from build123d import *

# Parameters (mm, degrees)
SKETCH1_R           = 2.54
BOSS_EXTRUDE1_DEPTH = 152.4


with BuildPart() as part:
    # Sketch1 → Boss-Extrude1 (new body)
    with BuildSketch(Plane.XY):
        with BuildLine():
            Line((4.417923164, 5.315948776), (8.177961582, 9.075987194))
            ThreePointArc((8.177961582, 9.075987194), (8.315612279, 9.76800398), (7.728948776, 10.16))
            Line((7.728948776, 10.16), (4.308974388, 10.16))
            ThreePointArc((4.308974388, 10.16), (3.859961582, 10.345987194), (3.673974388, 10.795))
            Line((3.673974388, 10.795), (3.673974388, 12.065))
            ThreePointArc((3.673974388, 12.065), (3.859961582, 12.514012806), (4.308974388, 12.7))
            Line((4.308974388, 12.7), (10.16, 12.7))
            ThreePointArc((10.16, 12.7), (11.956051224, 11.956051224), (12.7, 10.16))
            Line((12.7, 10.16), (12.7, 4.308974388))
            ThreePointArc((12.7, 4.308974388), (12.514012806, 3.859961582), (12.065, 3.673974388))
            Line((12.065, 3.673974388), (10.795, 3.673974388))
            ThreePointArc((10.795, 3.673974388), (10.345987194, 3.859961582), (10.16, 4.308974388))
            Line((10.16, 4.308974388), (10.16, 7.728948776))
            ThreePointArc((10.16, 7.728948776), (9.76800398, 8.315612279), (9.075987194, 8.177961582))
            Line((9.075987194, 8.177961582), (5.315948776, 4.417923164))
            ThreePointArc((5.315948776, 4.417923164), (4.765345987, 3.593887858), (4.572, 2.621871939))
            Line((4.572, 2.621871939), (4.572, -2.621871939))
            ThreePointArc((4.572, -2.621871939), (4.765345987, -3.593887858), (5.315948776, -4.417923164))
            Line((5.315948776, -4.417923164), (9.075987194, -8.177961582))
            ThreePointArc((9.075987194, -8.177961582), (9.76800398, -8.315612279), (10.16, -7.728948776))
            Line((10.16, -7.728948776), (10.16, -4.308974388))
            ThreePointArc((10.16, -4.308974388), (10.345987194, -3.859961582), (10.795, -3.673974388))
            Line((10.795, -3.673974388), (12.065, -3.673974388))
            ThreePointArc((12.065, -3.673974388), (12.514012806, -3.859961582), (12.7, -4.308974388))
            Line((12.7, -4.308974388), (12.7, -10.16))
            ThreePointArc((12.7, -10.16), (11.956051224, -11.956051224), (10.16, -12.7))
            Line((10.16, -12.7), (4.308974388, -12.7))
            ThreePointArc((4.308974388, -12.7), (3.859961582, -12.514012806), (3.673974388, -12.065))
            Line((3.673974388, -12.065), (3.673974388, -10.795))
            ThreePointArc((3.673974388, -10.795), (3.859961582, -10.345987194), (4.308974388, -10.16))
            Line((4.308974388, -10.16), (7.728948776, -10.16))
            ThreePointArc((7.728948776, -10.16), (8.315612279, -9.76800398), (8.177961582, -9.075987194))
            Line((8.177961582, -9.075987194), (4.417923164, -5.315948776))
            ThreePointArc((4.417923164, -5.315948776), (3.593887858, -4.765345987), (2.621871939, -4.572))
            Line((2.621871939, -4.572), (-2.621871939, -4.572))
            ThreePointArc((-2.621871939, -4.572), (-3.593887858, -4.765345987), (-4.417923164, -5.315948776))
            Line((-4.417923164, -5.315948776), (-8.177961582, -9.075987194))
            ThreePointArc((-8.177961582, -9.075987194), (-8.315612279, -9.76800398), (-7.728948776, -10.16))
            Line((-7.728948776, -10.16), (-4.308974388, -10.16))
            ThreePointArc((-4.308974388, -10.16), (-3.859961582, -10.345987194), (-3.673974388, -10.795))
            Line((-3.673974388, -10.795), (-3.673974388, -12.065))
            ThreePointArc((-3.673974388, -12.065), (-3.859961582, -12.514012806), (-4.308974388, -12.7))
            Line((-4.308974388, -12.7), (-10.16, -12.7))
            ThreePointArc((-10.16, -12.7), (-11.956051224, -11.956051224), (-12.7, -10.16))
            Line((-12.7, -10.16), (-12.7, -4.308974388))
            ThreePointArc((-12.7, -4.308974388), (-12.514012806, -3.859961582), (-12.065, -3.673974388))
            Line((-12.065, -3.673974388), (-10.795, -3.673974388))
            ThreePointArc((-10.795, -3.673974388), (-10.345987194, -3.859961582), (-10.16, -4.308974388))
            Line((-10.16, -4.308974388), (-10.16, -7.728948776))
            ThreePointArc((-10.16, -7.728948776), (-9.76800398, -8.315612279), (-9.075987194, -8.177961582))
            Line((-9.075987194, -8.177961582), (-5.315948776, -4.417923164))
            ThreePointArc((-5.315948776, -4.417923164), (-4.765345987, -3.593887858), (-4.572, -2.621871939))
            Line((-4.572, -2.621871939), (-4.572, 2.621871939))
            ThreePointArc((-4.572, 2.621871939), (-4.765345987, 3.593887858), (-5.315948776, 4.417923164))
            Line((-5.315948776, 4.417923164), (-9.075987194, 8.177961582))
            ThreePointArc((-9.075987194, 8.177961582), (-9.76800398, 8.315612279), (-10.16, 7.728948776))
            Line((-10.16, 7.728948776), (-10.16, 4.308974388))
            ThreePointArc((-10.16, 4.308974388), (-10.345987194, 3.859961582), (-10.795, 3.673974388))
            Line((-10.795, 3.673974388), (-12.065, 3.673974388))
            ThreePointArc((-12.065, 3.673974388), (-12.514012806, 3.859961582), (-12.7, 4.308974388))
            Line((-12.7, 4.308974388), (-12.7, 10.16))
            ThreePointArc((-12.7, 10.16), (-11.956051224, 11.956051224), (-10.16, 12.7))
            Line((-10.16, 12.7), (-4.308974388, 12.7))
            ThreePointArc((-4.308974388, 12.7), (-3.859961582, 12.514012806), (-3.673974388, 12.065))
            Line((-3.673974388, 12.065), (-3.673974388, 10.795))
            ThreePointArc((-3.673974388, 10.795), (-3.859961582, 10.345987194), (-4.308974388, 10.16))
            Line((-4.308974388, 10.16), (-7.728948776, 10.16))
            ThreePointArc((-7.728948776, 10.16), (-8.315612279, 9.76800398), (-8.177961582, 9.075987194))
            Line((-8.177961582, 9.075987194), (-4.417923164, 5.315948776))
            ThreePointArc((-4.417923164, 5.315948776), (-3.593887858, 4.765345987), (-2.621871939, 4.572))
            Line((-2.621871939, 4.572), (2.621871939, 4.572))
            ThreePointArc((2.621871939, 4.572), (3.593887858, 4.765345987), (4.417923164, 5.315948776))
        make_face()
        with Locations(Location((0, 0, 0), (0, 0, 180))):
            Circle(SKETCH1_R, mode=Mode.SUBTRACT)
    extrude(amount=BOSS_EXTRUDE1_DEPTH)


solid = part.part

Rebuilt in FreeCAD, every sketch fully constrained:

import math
import FreeCAD as App
import Part
import Sketcher

V = App.Vector
Q = App.Units.Quantity

doc = App.newDocument("Part")
body = doc.addObject("PartDesign::Body", "Body")

# Sketch on XY plane
sketch1 = body.newObject("Sketcher::SketchObject", "Sketch")
sketch1.AttachmentSupport = (doc.getObject("XY_Plane"), [""])
sketch1.MapMode = "FlatFace"
sketch1.addGeometry([
    Part.LineSegment(V(8.177962, 9.075987, 0), V(4.417923, 5.315949, 0)),  # 0
    Part.ArcOfCircle(Part.Circle(V(2.621872, 7.112, 0), V(0, 0, 1), 2.54), math.radians(-90), math.radians(-45)),  # 1
    Part.LineSegment(V(2.621872, 4.572, 0), V(-2.621872, 4.572, 0)),  # 2
    Part.ArcOfCircle(Part.Circle(V(-2.621872, 7.112, 0), V(0, 0, 1), 2.54), math.radians(-135), math.radians(-90)),  # 3
    Part.LineSegment(V(-4.417923, 5.315949, 0), V(-8.177962, 9.075987, 0)),  # 4
    Part.ArcOfCircle(Part.Circle(V(-7.728949, 9.525, 0), V(0, 0, 1), 0.635), math.radians(90), math.radians(225)),  # 5
    Part.LineSegment(V(-7.728949, 10.16, 0), V(-4.308974, 10.16, 0)),  # 6
    Part.ArcOfCircle(Part.Circle(V(-4.308974, 10.795, 0), V(0, 0, 1), 0.635), math.radians(-90), math.radians(0)),  # 7
    Part.LineSegment(V(-3.673974, 10.795, 0), V(-3.673974, 12.065, 0)),  # 8
    Part.ArcOfCircle(Part.Circle(V(-4.308974, 12.065, 0), V(0, 0, 1), 0.635), math.radians(0), math.radians(90)),  # 9
    Part.LineSegment(V(-4.308974, 12.7, 0), V(-10.16, 12.7, 0)),  # 10
    Part.ArcOfCircle(Part.Circle(V(-10.16, 10.16, 0), V(0, 0, 1), 2.54), math.radians(90), math.radians(180)),  # 11
    Part.LineSegment(V(-12.7, 10.16, 0), V(-12.7, 4.308974, 0)),  # 12
    Part.ArcOfCircle(Part.Circle(V(-12.065, 4.308974, 0), V(0, 0, 1), 0.635), math.radians(180), math.radians(270)),  # 13
    Part.LineSegment(V(-12.065, 3.673974, 0), V(-10.795, 3.673974, 0)),  # 14
    Part.ArcOfCircle(Part.Circle(V(-10.795, 4.308974, 0), V(0, 0, 1), 0.635), math.radians(-90), math.radians(0)),  # 15
    Part.LineSegment(V(-10.16, 4.308974, 0), V(-10.16, 7.728949, 0)),  # 16
    Part.ArcOfCircle(Part.Circle(V(-9.525, 7.728949, 0), V(0, 0, 1), 0.635), math.radians(45), math.radians(180)),  # 17
    Part.LineSegment(V(-9.075987, 8.177962, 0), V(-5.315949, 4.417923, 0)),  # 18
    Part.ArcOfCircle(Part.Circle(V(-7.112, 2.621872, 0), V(0, 0, 1), 2.54), math.radians(0), math.radians(45)),  # 19
    Part.LineSegment(V(-4.572, 2.621872, 0), V(-4.572, -2.621872, 0)),  # 20
    Part.ArcOfCircle(Part.Circle(V(-7.112, -2.621872, 0), V(0, 0, 1), 2.54), math.radians(-45), math.radians(0)),  # 21
    Part.LineSegment(V(-5.315949, -4.417923, 0), V(-9.075987, -8.177962, 0)),  # 22
    Part.ArcOfCircle(Part.Circle(V(-9.525, -7.728949, 0), V(0, 0, 1), 0.635), math.radians(180), math.radians(315)),  # 23
    Part.LineSegment(V(-10.16, -7.728949, 0), V(-10.16, -4.308974, 0)),  # 24
    Part.ArcOfCircle(Part.Circle(V(-10.795, -4.308974, 0), V(0, 0, 1), 0.635), math.radians(0), math.radians(90)),  # 25
    Part.LineSegment(V(-10.795, -3.673974, 0), V(-12.065, -3.673974, 0)),  # 26
    Part.ArcOfCircle(Part.Circle(V(-12.065, -4.308974, 0), V(0, 0, 1), 0.635), math.radians(90), math.radians(180)),  # 27
    Part.LineSegment(V(-12.7, -4.308974, 0), V(-12.7, -10.16, 0)),  # 28
    Part.ArcOfCircle(Part.Circle(V(-10.16, -10.16, 0), V(0, 0, 1), 2.54), math.radians(-180), math.radians(-90)),  # 29
    Part.LineSegment(V(-10.16, -12.7, 0), V(-4.308974, -12.7, 0)),  # 30
    Part.ArcOfCircle(Part.Circle(V(-4.308974, -12.065, 0), V(0, 0, 1), 0.635), math.radians(-90), math.radians(0)),  # 31
    Part.LineSegment(V(-3.673974, -12.065, 0), V(-3.673974, -10.795, 0)),  # 32
    Part.ArcOfCircle(Part.Circle(V(-4.308974, -10.795, 0), V(0, 0, 1), 0.635), math.radians(0), math.radians(90)),  # 33
    Part.LineSegment(V(-4.308974, -10.16, 0), V(-7.728949, -10.16, 0)),  # 34
    Part.ArcOfCircle(Part.Circle(V(-7.728949, -9.525, 0), V(0, 0, 1), 0.635), math.radians(135), math.radians(270)),  # 35
    Part.LineSegment(V(-8.177962, -9.075987, 0), V(-4.417923, -5.315949, 0)),  # 36
    Part.ArcOfCircle(Part.Circle(V(-2.621872, -7.112, 0), V(0, 0, 1), 2.54), math.radians(90), math.radians(135)),  # 37
    Part.LineSegment(V(-2.621872, -4.572, 0), V(2.621872, -4.572, 0)),  # 38
    Part.ArcOfCircle(Part.Circle(V(2.621872, -7.112, 0), V(0, 0, 1), 2.54), math.radians(45), math.radians(90)),  # 39
    Part.LineSegment(V(4.417923, -5.315949, 0), V(8.177962, -9.075987, 0)),  # 40
    Part.ArcOfCircle(Part.Circle(V(7.728949, -9.525, 0), V(0, 0, 1), 0.635), math.radians(-90), math.radians(45)),  # 41
    Part.LineSegment(V(7.728949, -10.16, 0), V(4.308974, -10.16, 0)),  # 42
    Part.ArcOfCircle(Part.Circle(V(4.308974, -10.795, 0), V(0, 0, 1), 0.635), math.radians(90), math.radians(180)),  # 43
    Part.LineSegment(V(3.673974, -10.795, 0), V(3.673974, -12.065, 0)),  # 44
    Part.ArcOfCircle(Part.Circle(V(4.308974, -12.065, 0), V(0, 0, 1), 0.635), math.radians(180), math.radians(270)),  # 45
    Part.LineSegment(V(4.308974, -12.7, 0), V(10.16, -12.7, 0)),  # 46
    Part.ArcOfCircle(Part.Circle(V(10.16, -10.16, 0), V(0, 0, 1), 2.54), math.radians(-90), math.radians(0)),  # 47
    Part.LineSegment(V(12.7, -10.16, 0), V(12.7, -4.308974, 0)),  # 48
    Part.ArcOfCircle(Part.Circle(V(12.065, -4.308974, 0), V(0, 0, 1), 0.635), math.radians(0), math.radians(90)),  # 49
    Part.LineSegment(V(12.065, -3.673974, 0), V(10.795, -3.673974, 0)),  # 50
    Part.ArcOfCircle(Part.Circle(V(10.795, -4.308974, 0), V(0, 0, 1), 0.635), math.radians(90), math.radians(180)),  # 51
    Part.LineSegment(V(10.16, -4.308974, 0), V(10.16, -7.728949, 0)),  # 52
    Part.ArcOfCircle(Part.Circle(V(9.525, -7.728949, 0), V(0, 0, 1), 0.635), math.radians(-135), math.radians(0)),  # 53
    Part.LineSegment(V(9.075987, -8.177962, 0), V(5.315949, -4.417923, 0)),  # 54
    Part.ArcOfCircle(Part.Circle(V(7.112, -2.621872, 0), V(0, 0, 1), 2.54), math.radians(180), math.radians(225)),  # 55
    Part.LineSegment(V(4.572, -2.621872, 0), V(4.572, 2.621872, 0)),  # 56
    Part.ArcOfCircle(Part.Circle(V(7.112, 2.621872, 0), V(0, 0, 1), 2.54), math.radians(135), math.radians(180)),  # 57
    Part.LineSegment(V(5.315949, 4.417923, 0), V(9.075987, 8.177962, 0)),  # 58
    Part.ArcOfCircle(Part.Circle(V(9.525, 7.728949, 0), V(0, 0, 1), 0.635), math.radians(0), math.radians(135)),  # 59
    Part.LineSegment(V(10.16, 7.728949, 0), V(10.16, 4.308974, 0)),  # 60
    Part.ArcOfCircle(Part.Circle(V(10.795, 4.308974, 0), V(0, 0, 1), 0.635), math.radians(180), math.radians(270)),  # 61
    Part.LineSegment(V(10.795, 3.673974, 0), V(12.065, 3.673974, 0)),  # 62
    Part.ArcOfCircle(Part.Circle(V(12.065, 4.308974, 0), V(0, 0, 1), 0.635), math.radians(-90), math.radians(0)),  # 63
    Part.LineSegment(V(12.7, 4.308974, 0), V(12.7, 10.16, 0)),  # 64
    Part.ArcOfCircle(Part.Circle(V(10.16, 10.16, 0), V(0, 0, 1), 2.54), math.radians(0), math.radians(90)),  # 65
    Part.LineSegment(V(10.16, 12.7, 0), V(4.308974, 12.7, 0)),  # 66
    Part.ArcOfCircle(Part.Circle(V(4.308974, 12.065, 0), V(0, 0, 1), 0.635), math.radians(90), math.radians(180)),  # 67
    Part.LineSegment(V(3.673974, 12.065, 0), V(3.673974, 10.795, 0)),  # 68
    Part.ArcOfCircle(Part.Circle(V(4.308974, 10.795, 0), V(0, 0, 1), 0.635), math.radians(180), math.radians(270)),  # 69
    Part.LineSegment(V(4.308974, 10.16, 0), V(7.728949, 10.16, 0)),  # 70
    Part.ArcOfCircle(Part.Circle(V(7.728949, 9.525, 0), V(0, 0, 1), 0.635), math.radians(-45), math.radians(90)),  # 71
    Part.Circle(V(0, 0, 0), V(0, 0, 1), 2.54),  # 72
], False)
sketch1.addConstraint([
    Sketcher.Constraint("Tangent", 0, 2, 1, 2),
    Sketcher.Constraint("Tangent", 1, 1, 2, 1),
    Sketcher.Constraint("Tangent", 2, 2, 3, 2),
    Sketcher.Constraint("Tangent", 3, 1, 4, 1),
    Sketcher.Constraint("Tangent", 4, 2, 5, 2),
    Sketcher.Constraint("Tangent", 5, 1, 6, 1),
    Sketcher.Constraint("Tangent", 6, 2, 7, 1),
    Sketcher.Constraint("Tangent", 7, 2, 8, 1),
    Sketcher.Constraint("Tangent", 8, 2, 9, 1),
    Sketcher.Constraint("Tangent", 9, 2, 10, 1),
    Sketcher.Constraint("Tangent", 10, 2, 11, 1),
    Sketcher.Constraint("Tangent", 11, 2, 12, 1),
    Sketcher.Constraint("Tangent", 12, 2, 13, 1),
    Sketcher.Constraint("Tangent", 13, 2, 14, 1),
    Sketcher.Constraint("Tangent", 14, 2, 15, 1),
    Sketcher.Constraint("Tangent", 15, 2, 16, 1),
    Sketcher.Constraint("Tangent", 16, 2, 17, 2),
    Sketcher.Constraint("Tangent", 17, 1, 18, 1),
    Sketcher.Constraint("Tangent", 18, 2, 19, 2),
    Sketcher.Constraint("Tangent", 19, 1, 20, 1),
    Sketcher.Constraint("Tangent", 20, 2, 21, 2),
    Sketcher.Constraint("Tangent", 21, 1, 22, 1),
    Sketcher.Constraint("Tangent", 22, 2, 23, 2),
    Sketcher.Constraint("Tangent", 23, 1, 24, 1),
    Sketcher.Constraint("Tangent", 24, 2, 25, 1),
    Sketcher.Constraint("Tangent", 25, 2, 26, 1),
    Sketcher.Constraint("Tangent", 26, 2, 27, 1),
    Sketcher.Constraint("Tangent", 27, 2, 28, 1),
    Sketcher.Constraint("Tangent", 28, 2, 29, 1),
    Sketcher.Constraint("Tangent", 29, 2, 30, 1),
    Sketcher.Constraint("Tangent", 30, 2, 31, 1),
    Sketcher.Constraint("Tangent", 31, 2, 32, 1),
    Sketcher.Constraint("Tangent", 32, 2, 33, 1),
    Sketcher.Constraint("Tangent", 33, 2, 34, 1),
    Sketcher.Constraint("Tangent", 34, 2, 35, 2),
    Sketcher.Constraint("Tangent", 35, 1, 36, 1),
    Sketcher.Constraint("Tangent", 36, 2, 37, 2),
    Sketcher.Constraint("Tangent", 37, 1, 38, 1),
    Sketcher.Constraint("Tangent", 38, 2, 39, 2),
    Sketcher.Constraint("Tangent", 39, 1, 40, 1),
    Sketcher.Constraint("Tangent", 40, 2, 41, 2),
    Sketcher.Constraint("Tangent", 41, 1, 42, 1),
    Sketcher.Constraint("Tangent", 42, 2, 43, 1),
    Sketcher.Constraint("Tangent", 43, 2, 44, 1),
    Sketcher.Constraint("Tangent", 44, 2, 45, 1),
    Sketcher.Constraint("Tangent", 45, 2, 46, 1),
    Sketcher.Constraint("Tangent", 46, 2, 47, 1),
    Sketcher.Constraint("Tangent", 47, 2, 48, 1),
    Sketcher.Constraint("Tangent", 48, 2, 49, 1),
    Sketcher.Constraint("Tangent", 49, 2, 50, 1),
    Sketcher.Constraint("Tangent", 50, 2, 51, 1),
    Sketcher.Constraint("Tangent", 51, 2, 52, 1),
    Sketcher.Constraint("Tangent", 52, 2, 53, 2),
    Sketcher.Constraint("Tangent", 53, 1, 54, 1),
    Sketcher.Constraint("Tangent", 54, 2, 55, 2),
    Sketcher.Constraint("Tangent", 55, 1, 56, 1),
    Sketcher.Constraint("Tangent", 56, 2, 57, 2),
    Sketcher.Constraint("Tangent", 57, 1, 58, 1),
    Sketcher.Constraint("Tangent", 58, 2, 59, 2),
    Sketcher.Constraint("Tangent", 59, 1, 60, 1),
    Sketcher.Constraint("Tangent", 60, 2, 61, 1),
    Sketcher.Constraint("Tangent", 61, 2, 62, 1),
    Sketcher.Constraint("Tangent", 62, 2, 63, 1),
    Sketcher.Constraint("Tangent", 63, 2, 64, 1),
    Sketcher.Constraint("Tangent", 64, 2, 65, 1),
    Sketcher.Constraint("Tangent", 65, 2, 66, 1),
    Sketcher.Constraint("Tangent", 66, 2, 67, 1),
    Sketcher.Constraint("Tangent", 67, 2, 68, 1),
    Sketcher.Constraint("Tangent", 68, 2, 69, 1),
    Sketcher.Constraint("Tangent", 69, 2, 70, 1),
    Sketcher.Constraint("Tangent", 70, 2, 71, 2),
    Sketcher.Constraint("Tangent", 71, 1, 0, 1),
    Sketcher.Constraint("Horizontal", 2),
    Sketcher.Constraint("Horizontal", 6),
    Sketcher.Constraint("Vertical", 8),
    Sketcher.Constraint("Horizontal", 10),
    Sketcher.Constraint("Vertical", 12),
    Sketcher.Constraint("Horizontal", 14),
    Sketcher.Constraint("Vertical", 16),
    Sketcher.Constraint("Vertical", 20),
    Sketcher.Constraint("Vertical", 24),
    Sketcher.Constraint("Horizontal", 26),
    Sketcher.Constraint("Vertical", 28),
    Sketcher.Constraint("Horizontal", 30),
    Sketcher.Constraint("Vertical", 32),
    Sketcher.Constraint("Horizontal", 34),
    Sketcher.Constraint("Horizontal", 38),
    Sketcher.Constraint("Horizontal", 42),
    Sketcher.Constraint("Vertical", 44),
    Sketcher.Constraint("Horizontal", 46),
    Sketcher.Constraint("Vertical", 48),
    Sketcher.Constraint("Horizontal", 50),
    Sketcher.Constraint("Vertical", 52),
    Sketcher.Constraint("Vertical", 56),
    Sketcher.Constraint("Vertical", 60),
    Sketcher.Constraint("Horizontal", 62),
    Sketcher.Constraint("Vertical", 64),
    Sketcher.Constraint("Horizontal", 66),
    Sketcher.Constraint("Vertical", 68),
    Sketcher.Constraint("Horizontal", 70),
    Sketcher.Constraint("Coincident", 72, 3, -1, 1),
    Sketcher.Constraint("Equal", 1, 3),
    Sketcher.Constraint("Equal", 5, 7),
    Sketcher.Constraint("Equal", 7, 9),
    Sketcher.Constraint("Equal", 3, 11),
    Sketcher.Constraint("Equal", 9, 13),
    Sketcher.Constraint("Equal", 13, 15),
    Sketcher.Constraint("Equal", 15, 17),
    Sketcher.Constraint("Equal", 11, 19),
    Sketcher.Constraint("Equal", 19, 21),
    Sketcher.Constraint("Equal", 17, 23),
    Sketcher.Constraint("Equal", 23, 25),
    Sketcher.Constraint("Equal", 25, 27),
    Sketcher.Constraint("Equal", 21, 29),
    Sketcher.Constraint("Equal", 27, 31),
    Sketcher.Constraint("Equal", 31, 33),
    Sketcher.Constraint("Equal", 33, 35),
    Sketcher.Constraint("Equal", 29, 37),
    Sketcher.Constraint("Equal", 37, 39),
    Sketcher.Constraint("Equal", 35, 41),
    Sketcher.Constraint("Equal", 41, 43),
    Sketcher.Constraint("Equal", 43, 45),
    Sketcher.Constraint("Equal", 39, 47),
    Sketcher.Constraint("Equal", 45, 49),
    Sketcher.Constraint("Equal", 49, 51),
    Sketcher.Constraint("Equal", 51, 53),
    Sketcher.Constraint("Equal", 47, 55),
    Sketcher.Constraint("Equal", 55, 57),
    Sketcher.Constraint("Equal", 53, 59),
    Sketcher.Constraint("Equal", 59, 61),
    Sketcher.Constraint("Equal", 61, 63),
    Sketcher.Constraint("Equal", 57, 65),
    Sketcher.Constraint("Equal", 63, 67),
    Sketcher.Constraint("Equal", 67, 69),
    Sketcher.Constraint("Equal", 69, 71),
    Sketcher.Constraint("Equal", 65, 72),
    Sketcher.Constraint("Symmetric", 1, 3, 37, 3, -1, 1),
    Sketcher.Constraint("Symmetric", 5, 3, 41, 3, -1, 1),
    Sketcher.Constraint("Symmetric", 9, 3, 45, 3, -1, 1),
    Sketcher.Constraint("Symmetric", 13, 3, 49, 3, -1, 1),
    Sketcher.Constraint("Symmetric", 17, 3, 53, 3, -1, 1),
    Sketcher.Constraint("Symmetric", 19, 3, 55, 3, -1, 1),
    Sketcher.Constraint("Symmetric", 23, 3, 59, 3, -1, 1),
    Sketcher.Constraint("Symmetric", 27, 3, 63, 3, -1, 1),
    Sketcher.Constraint("Symmetric", 31, 3, 67, 3, -1, 1),
    Sketcher.Constraint("Symmetric", 35, 3, 71, 3, -1, 1),
    Sketcher.Constraint("Symmetric", 35, 3, 41, 3, -2),
    Sketcher.Constraint("Symmetric", 31, 3, 45, 3, -2),
    Sketcher.Constraint("Symmetric", 27, 3, 49, 3, -2),
    Sketcher.Constraint("Symmetric", 23, 3, 53, 3, -2),
    Sketcher.Constraint("Perpendicular", 0, 4),
    Sketcher.Constraint("Parallel", 4, 18),
    Sketcher.Constraint("Perpendicular", 18, 22),
    Sketcher.Constraint("Perpendicular", 36, 40),
    Sketcher.Constraint("Perpendicular", 54, 58),
    Sketcher.Constraint("Horizontal", 21, 3, 55, 3),
    Sketcher.Constraint("Horizontal", 65, 3, 5, 1),
    Sketcher.Constraint("Vertical", 10, 2, 15, 2),
    Sketcher.Constraint("Equal", 66, 12),
    Sketcher.Constraint("Equal", 70, 16),
    Sketcher.Constraint("Equal", 38, 20),
    Sketcher.Constraint("Equal", 4, 18),
    Sketcher.Constraint("Diameter", 72, Q("0.2 in")),
    Sketcher.Constraint("Radius", 5, Q("0.025 in")),
    Sketcher.Constraint("DistanceX", 11, 3, -1, 1, Q("0.4 in")),
    Sketcher.Constraint("DistanceY", -1, 1, 1, 3, Q("0.28 in")),
    Sketcher.Constraint("DistanceX", 2, 2, 2, 1, 5.243744),
    Sketcher.Constraint("DistanceX", 6, 1, 6, 2, 3.419974),
])
pad1 = body.newObject("PartDesign::Pad", "Pad")
pad1.Profile = sketch1
pad1.Length = Q("6 in")

doc.recompute()
